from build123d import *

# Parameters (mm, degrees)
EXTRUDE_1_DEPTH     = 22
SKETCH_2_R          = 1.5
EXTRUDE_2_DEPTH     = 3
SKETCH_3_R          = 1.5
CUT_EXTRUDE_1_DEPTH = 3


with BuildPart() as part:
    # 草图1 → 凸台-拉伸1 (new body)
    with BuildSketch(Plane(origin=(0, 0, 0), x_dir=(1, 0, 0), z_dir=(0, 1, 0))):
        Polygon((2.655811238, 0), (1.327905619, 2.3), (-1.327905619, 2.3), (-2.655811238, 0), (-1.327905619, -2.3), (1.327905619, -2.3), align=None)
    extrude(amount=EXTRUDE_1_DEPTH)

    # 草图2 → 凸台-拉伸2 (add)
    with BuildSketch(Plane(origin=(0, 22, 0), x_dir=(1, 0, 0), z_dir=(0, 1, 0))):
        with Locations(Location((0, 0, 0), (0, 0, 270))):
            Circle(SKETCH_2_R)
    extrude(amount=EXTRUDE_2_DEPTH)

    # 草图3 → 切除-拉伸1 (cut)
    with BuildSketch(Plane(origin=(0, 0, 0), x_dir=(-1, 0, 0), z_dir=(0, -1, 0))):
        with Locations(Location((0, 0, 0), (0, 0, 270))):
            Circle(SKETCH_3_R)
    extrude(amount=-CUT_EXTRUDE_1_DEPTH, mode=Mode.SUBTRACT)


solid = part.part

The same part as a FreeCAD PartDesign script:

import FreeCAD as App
import Part
import Sketcher
from FreeCAD import Vector
Q = App.Units.Quantity

doc = App.newDocument("Part")
body = doc.addObject("PartDesign::Body", "Body")

sketch1 = body.newObject("Sketcher::SketchObject", "Sketch")
sketch1.AttachmentSupport = (doc.getObject("XZ_Plane"), [""])
sketch1.MapMode = "FlatFace"
sketch1.addGeometry([
    Part.LineSegment(Vector(2.655811, 0, 0), Vector(1.327906, -2.3, 0)),
    Part.LineSegment(Vector(1.327906, -2.3, 0), Vector(-1.327906, -2.3, 0)),
    Part.LineSegment(Vector(-1.327906, -2.3, 0), Vector(-2.655811, 0, 0)),
    Part.LineSegment(Vector(-2.655811, 0, 0), Vector(-1.327906, 2.3, 0)),
    Part.LineSegment(Vector(-1.327906, 2.3, 0), Vector(1.327906, 2.3, 0)),
    Part.LineSegment(Vector(1.327906, 2.3, 0), Vector(2.655811, 0, 0)),
], False)
sketch1.addConstraint([
    Sketcher.Constraint("Coincident", 0, 2, 1, 1),
    Sketcher.Constraint("Coincident", 1, 2, 2, 1),
    Sketcher.Constraint("Coincident", 2, 2, 3, 1),
    Sketcher.Constraint("Coincident", 3, 2, 4, 1),
    Sketcher.Constraint("Coincident", 4, 2, 5, 1),
    Sketcher.Constraint("Coincident", 5, 2, 0, 1),
    Sketcher.Constraint("Horizontal", 1),
    Sketcher.Constraint("Horizontal", 4),
    Sketcher.Constraint("Symmetric", 0, 2, 3, 2, -1, 1),
    Sketcher.Constraint("Symmetric", 2, 2, 5, 2, -1, 1),
    Sketcher.Constraint("PointOnObject", 2, 2, -1),
    Sketcher.Constraint("Parallel", 2, 5),
    Sketcher.Constraint("Vertical", 1, 2, 3, 2),
    Sketcher.Constraint("Angle", 0, Q("-120 deg")),
    Sketcher.Constraint("DistanceY", 0, 2, -1, 1, Q("2.3 mm")),
    Sketcher.Constraint("DistanceX", 1, 2, 1, 1, Q("2.655811 mm")),
])
pad1 = body.newObject("PartDesign::Pad", "Pad")
pad1.Profile = sketch1
pad1.Length = 22
pad1.Reversed = True

sketch2 = body.newObject("Sketcher::SketchObject", "Sketch001")
sketch2.AttachmentSupport = (doc.getObject("XZ_Plane"), [""])
sketch2.MapMode = "FlatFace"
sketch2.AttachmentOffset = App.Placement(Vector(0, 0, -22), App.Rotation())
sketch2.addGeometry(Part.Circle(Vector(0, 0, 0), Vector(0, 0, 1), 1.5), False)
sketch2.addConstraint([
    Sketcher.Constraint("Coincident", 0, 3, -1, 1),
    Sketcher.Constraint("Diameter", 0, Q("3 mm")),
])
pad2 = body.newObject("PartDesign::Pad", "Pad001")
pad2.Profile = sketch2
pad2.Length = 3
pad2.Reversed = True

sketch3 = body.newObject("Sketcher::SketchObject", "Sketch002")
sketch3.AttachmentSupport = (doc.getObject("XZ_Plane"), [""])
sketch3.MapMode = "FlatFace"
sketch3.addGeometry(Part.Circle(Vector(0, 0, 0), Vector(0, 0, 1), 1.5), False)
sketch3.addConstraint([
    Sketcher.Constraint("Coincident", 0, 3, -1, 1),
    Sketcher.Constraint("Diameter", 0, Q("3 mm")),
])
pocket1 = body.newObject("PartDesign::Pocket", "Pocket")
pocket1.Profile = sketch3
pocket1.Length = 3

doc.recompute()
